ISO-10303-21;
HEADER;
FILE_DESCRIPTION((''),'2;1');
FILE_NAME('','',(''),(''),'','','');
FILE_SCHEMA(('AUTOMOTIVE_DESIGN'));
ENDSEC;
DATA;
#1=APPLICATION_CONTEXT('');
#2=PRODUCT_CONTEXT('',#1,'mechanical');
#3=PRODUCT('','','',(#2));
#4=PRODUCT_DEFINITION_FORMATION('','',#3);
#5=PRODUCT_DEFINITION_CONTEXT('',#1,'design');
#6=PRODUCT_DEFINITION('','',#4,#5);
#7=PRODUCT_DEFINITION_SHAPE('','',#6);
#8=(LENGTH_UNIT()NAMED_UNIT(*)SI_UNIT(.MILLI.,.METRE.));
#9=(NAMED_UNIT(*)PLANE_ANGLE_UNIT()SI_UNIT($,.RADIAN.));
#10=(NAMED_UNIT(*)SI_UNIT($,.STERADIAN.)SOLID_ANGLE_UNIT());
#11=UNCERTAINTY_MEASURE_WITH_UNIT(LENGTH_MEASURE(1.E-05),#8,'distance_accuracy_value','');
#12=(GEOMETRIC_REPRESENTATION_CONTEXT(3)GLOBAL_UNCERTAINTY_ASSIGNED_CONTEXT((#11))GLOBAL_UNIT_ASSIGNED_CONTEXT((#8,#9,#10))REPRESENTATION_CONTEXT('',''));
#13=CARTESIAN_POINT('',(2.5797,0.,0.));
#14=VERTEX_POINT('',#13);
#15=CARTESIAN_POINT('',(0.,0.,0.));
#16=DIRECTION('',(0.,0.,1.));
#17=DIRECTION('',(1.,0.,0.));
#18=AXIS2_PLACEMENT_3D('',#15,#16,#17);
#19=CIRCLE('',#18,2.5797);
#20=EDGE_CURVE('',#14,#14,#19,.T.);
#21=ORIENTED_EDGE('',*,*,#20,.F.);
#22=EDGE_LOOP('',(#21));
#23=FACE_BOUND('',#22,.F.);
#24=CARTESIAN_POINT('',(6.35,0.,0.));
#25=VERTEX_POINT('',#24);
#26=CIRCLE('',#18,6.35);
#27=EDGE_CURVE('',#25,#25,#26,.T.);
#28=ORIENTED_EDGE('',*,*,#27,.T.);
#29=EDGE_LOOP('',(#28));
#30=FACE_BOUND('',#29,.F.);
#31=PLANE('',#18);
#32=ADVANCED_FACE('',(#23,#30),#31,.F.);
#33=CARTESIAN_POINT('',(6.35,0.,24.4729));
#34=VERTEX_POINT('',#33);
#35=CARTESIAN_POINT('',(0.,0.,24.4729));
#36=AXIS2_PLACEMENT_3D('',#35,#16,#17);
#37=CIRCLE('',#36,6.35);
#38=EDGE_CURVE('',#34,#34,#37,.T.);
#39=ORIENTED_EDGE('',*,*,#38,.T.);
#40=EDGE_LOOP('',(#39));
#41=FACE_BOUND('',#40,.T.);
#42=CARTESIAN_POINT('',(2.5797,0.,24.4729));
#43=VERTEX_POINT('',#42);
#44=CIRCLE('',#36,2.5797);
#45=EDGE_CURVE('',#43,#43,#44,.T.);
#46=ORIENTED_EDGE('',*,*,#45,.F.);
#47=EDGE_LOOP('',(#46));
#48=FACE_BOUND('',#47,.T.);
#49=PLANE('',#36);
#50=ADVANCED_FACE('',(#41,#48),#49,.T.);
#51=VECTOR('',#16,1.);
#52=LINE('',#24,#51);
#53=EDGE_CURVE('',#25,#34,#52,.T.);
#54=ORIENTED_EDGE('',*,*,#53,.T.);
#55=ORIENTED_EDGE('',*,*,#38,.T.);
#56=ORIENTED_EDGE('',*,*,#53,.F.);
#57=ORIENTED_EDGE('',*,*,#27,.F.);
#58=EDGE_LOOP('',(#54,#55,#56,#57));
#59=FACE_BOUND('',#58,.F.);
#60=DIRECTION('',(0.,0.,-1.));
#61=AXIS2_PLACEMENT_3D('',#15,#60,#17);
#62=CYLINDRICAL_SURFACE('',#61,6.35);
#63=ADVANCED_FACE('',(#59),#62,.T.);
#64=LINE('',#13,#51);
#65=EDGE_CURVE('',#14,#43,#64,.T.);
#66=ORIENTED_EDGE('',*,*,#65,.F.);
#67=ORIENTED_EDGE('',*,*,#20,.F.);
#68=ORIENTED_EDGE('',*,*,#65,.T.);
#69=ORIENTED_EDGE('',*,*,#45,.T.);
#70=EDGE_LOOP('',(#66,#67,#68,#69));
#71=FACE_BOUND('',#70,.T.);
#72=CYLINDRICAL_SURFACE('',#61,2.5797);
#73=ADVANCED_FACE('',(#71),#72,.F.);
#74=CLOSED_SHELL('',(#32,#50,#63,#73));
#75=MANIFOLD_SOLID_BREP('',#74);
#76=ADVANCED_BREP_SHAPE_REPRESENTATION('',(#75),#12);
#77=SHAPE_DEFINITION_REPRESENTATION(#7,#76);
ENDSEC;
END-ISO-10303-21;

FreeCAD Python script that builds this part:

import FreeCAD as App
import Part
import Sketcher
Q = App.Units.Quantity

doc = App.newDocument("Part")
body = doc.addObject("PartDesign::Body", "Body")

# Sketch on XY plane
sketch1 = body.newObject("Sketcher::SketchObject", "Sketch")
sketch1.AttachmentSupport = (doc.getObject("XY_Plane"), [""])
sketch1.MapMode = "FlatFace"
sketch1.addGeometry([
    Part.Circle(App.Vector(0, 0, 0), App.Vector(0, 0, 1), 6.3),
    Part.Circle(App.Vector(0, 0, 0), App.Vector(0, 0, 1), 2.6),
], False)
sketch1.addConstraint([
    Sketcher.Constraint("Coincident", 0, 3, -1, 1),
    Sketcher.Constraint("Coincident", 1, 3, -1, 1),
    Sketcher.Constraint("Diameter", 0, Q("0.5 in")),
    Sketcher.Constraint("Diameter", 1, Q("0.203126 in")),
])
pad1 = body.newObject("PartDesign::Pad", "Pad")
pad1.Profile = sketch1
pad1.Length = Q("0.9635 in")

doc.recompute()
